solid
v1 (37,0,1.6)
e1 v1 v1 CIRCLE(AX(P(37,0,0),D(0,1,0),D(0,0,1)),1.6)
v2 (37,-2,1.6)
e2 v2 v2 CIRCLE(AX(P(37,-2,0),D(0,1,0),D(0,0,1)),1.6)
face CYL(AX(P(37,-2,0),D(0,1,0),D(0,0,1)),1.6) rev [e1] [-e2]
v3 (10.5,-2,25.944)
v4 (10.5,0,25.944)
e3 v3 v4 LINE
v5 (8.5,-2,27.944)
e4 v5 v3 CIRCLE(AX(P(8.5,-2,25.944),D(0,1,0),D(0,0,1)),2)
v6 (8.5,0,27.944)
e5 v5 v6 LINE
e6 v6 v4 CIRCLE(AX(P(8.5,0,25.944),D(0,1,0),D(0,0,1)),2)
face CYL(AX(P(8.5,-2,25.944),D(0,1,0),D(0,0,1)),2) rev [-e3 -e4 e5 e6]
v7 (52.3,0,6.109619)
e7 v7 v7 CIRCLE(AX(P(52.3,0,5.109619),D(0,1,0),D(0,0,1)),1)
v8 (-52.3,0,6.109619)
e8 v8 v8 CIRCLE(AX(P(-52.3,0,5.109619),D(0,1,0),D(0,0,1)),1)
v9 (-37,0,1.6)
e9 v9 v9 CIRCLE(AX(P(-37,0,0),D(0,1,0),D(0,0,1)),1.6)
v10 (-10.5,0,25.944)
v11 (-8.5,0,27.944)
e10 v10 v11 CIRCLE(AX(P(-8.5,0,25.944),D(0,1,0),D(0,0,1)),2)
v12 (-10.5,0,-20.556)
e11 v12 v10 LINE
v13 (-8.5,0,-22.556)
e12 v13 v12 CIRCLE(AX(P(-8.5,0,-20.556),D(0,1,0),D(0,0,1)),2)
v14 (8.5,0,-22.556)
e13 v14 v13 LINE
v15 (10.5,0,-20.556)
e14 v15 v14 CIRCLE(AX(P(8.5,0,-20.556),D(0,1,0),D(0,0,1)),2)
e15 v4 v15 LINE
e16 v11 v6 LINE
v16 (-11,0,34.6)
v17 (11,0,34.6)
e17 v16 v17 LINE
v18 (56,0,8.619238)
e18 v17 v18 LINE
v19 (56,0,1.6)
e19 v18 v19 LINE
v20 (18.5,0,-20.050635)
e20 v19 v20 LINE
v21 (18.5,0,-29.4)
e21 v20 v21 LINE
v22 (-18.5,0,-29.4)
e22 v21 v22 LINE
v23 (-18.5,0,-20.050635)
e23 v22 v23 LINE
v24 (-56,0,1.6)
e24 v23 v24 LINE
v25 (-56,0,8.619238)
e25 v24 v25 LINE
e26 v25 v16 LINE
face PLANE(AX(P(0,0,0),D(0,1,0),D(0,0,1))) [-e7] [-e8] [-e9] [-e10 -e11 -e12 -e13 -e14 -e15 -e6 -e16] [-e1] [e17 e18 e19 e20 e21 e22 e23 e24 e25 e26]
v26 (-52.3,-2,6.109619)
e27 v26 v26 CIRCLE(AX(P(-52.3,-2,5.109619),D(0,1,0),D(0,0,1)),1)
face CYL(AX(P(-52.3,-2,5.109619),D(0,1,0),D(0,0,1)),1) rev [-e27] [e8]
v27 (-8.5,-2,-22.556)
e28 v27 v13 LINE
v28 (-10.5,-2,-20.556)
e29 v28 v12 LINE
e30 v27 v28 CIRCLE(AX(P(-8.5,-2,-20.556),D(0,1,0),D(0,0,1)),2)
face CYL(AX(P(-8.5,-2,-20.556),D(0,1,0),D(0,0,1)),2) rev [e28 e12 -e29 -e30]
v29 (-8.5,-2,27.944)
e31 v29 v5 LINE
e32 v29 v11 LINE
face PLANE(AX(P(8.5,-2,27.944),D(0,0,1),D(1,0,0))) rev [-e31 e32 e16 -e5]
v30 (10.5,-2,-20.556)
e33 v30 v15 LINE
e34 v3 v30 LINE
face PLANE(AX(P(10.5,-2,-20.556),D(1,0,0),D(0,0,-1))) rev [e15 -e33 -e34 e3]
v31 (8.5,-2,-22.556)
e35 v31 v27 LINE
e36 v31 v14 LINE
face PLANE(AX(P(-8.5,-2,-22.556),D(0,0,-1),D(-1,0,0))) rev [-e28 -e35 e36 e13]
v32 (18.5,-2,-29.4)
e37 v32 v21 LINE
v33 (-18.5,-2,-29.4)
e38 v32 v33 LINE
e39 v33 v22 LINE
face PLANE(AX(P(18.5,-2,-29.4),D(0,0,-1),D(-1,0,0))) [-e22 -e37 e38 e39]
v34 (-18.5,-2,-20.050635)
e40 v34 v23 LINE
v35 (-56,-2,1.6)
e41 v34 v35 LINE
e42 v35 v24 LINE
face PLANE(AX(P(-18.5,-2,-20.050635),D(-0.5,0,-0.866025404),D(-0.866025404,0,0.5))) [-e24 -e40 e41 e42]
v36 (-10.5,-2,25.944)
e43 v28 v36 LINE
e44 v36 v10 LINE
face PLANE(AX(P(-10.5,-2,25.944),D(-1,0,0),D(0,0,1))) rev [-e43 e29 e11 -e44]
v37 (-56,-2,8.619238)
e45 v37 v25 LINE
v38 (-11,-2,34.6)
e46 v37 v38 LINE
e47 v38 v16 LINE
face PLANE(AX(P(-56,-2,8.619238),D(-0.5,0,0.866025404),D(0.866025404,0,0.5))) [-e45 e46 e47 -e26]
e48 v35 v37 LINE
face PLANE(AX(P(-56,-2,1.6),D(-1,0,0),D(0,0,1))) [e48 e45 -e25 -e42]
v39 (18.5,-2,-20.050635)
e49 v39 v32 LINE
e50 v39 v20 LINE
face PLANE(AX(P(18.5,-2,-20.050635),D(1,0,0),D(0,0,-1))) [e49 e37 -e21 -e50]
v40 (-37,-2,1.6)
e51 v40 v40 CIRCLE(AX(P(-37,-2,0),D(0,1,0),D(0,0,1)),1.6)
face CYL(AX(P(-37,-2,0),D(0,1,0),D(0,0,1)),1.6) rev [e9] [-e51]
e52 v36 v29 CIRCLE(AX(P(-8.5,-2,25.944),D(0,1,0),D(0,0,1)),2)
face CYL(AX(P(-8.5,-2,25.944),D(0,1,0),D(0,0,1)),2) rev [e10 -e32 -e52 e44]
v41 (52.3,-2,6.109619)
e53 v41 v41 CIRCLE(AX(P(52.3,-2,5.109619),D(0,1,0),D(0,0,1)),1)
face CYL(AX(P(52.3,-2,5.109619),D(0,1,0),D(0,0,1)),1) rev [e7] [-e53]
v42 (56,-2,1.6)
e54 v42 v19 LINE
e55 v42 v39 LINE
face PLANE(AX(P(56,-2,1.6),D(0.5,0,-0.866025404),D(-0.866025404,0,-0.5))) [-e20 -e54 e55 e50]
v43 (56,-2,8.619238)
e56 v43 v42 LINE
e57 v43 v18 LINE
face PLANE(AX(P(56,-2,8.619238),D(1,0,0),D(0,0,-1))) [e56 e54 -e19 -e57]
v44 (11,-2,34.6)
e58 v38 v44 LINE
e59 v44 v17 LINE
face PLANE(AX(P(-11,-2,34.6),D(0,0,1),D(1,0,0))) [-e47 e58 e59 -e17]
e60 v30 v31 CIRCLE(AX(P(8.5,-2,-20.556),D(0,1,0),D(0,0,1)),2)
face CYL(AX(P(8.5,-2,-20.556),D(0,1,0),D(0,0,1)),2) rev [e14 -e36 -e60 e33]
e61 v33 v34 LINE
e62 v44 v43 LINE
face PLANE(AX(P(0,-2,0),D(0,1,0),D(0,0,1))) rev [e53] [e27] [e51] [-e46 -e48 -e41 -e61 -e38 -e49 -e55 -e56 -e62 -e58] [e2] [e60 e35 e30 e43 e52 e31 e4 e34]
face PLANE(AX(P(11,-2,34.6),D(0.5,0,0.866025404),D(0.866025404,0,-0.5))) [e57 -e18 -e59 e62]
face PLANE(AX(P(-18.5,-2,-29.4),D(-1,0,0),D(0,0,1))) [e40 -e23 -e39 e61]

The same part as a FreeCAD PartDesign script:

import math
import FreeCAD as App
import Part
import Sketcher
Q = App.Units.Quantity


def add_polygon(sketch, points):
    """Adds a closed chain of lines whose ends are joined by coincident constraints."""
    first, n = sketch.GeometryCount, len(points)
    for a, b in zip(points, points[1:] + points[:1]):
        sketch.addGeometry(Part.LineSegment(App.Vector(*a, 0), App.Vector(*b, 0)), False)
    for i in range(n):
        sketch.addConstraint(Sketcher.Constraint("Coincident", first + i, 2, first + (i + 1) % n, 1))

doc = App.newDocument("Part")
params = doc.addObject("Spreadsheet::Sheet", "Params")
for row, (alias, value) in enumerate([
    ("sketch1_diameter", "2 mm"),
    ("sketch1_radius", "2 mm"),
    ("sketch1_diameter2", "3.2 mm"),
    ("sketch1_width", "22 mm"),
    ("sketch1_width2", "37 mm"),
    ("pad1_length", "2 mm"),
], start=1):
    params.set(f"A{row}", alias)
    params.set(f"B{row}", "=" + value)
    params.setAlias(f"B{row}", alias)

body = doc.addObject("PartDesign::Body", "Body")

sketch1 = body.newObject("Sketcher::SketchObject", "Sketch")
sketch1.AttachmentSupport = (doc.getObject("XZ_Plane"), [""])
sketch1.MapMode = "FlatFace"
add_polygon(sketch1, [(-56, 1.6), (-56, 8.619238), (-11, 34.6), (11, 34.6), (56, 8.619238), (56, 1.6), (18.5, -20.050635), (18.5, -29.4), (-18.5, -29.4), (-18.5, -20.050635)])
sketch1.addGeometry(Part.Circle(App.Vector(-52.3, 5.109619, 0), App.Vector(0, 0, 1), 1), False)
sketch1.addGeometry(Part.Circle(App.Vector(52.3, 5.109619, 0), App.Vector(0, 0, 1), 1), False)
sketch1.addGeometry(Part.Circle(App.Vector(-37, 0, 0), App.Vector(0, 0, 1), 1.6), False)
sketch1.addGeometry(Part.ArcOfCircle(Part.Circle(App.Vector(8.5, 25.944, 0), App.Vector(0, 0, 1), 2), math.radians(0), math.radians(90)), False)
sketch1.addGeometry(Part.LineSegment(App.Vector(8.5, 27.944, 0), App.Vector(-8.5, 27.944, 0)), False)
sketch1.addGeometry(Part.ArcOfCircle(Part.Circle(App.Vector(-8.5, 25.944, 0), App.Vector(0, 0, 1), 2), math.radians(90), math.radians(180)), False)
sketch1.addGeometry(Part.LineSegment(App.Vector(-10.5, 25.944, 0), App.Vector(-10.5, -20.556, 0)), False)
sketch1.addGeometry(Part.ArcOfCircle(Part.Circle(App.Vector(-8.5, -20.556, 0), App.Vector(0, 0, 1), 2), math.radians(-180), math.radians(-90)), False)
sketch1.addGeometry(Part.LineSegment(App.Vector(-8.5, -22.556, 0), App.Vector(8.5, -22.556, 0)), False)
sketch1.addGeometry(Part.ArcOfCircle(Part.Circle(App.Vector(8.5, -20.556, 0), App.Vector(0, 0, 1), 2), math.radians(-90), math.radians(0)), False)
sketch1.addGeometry(Part.LineSegment(App.Vector(10.5, -20.556, 0), App.Vector(10.5, 25.944, 0)), False)
sketch1.addGeometry(Part.Circle(App.Vector(37, 0, 0), App.Vector(0, 0, 1), 1.6), False)
sketch1.addConstraint(Sketcher.Constraint("Tangent", 13, 2, 14, 1))
sketch1.addConstraint(Sketcher.Constraint("Tangent", 14, 2, 15, 1))
sketch1.addConstraint(Sketcher.Constraint("Tangent", 15, 2, 16, 1))
sketch1.addConstraint(Sketcher.Constraint("Tangent", 16, 2, 17, 1))
sketch1.addConstraint(Sketcher.Constraint("Tangent", 17, 2, 18, 1))
sketch1.addConstraint(Sketcher.Constraint("Tangent", 18, 2, 19, 1))
sketch1.addConstraint(Sketcher.Constraint("Tangent", 19, 2, 20, 1))
sketch1.addConstraint(Sketcher.Constraint("Tangent", 20, 2, 13, 1))
sketch1.addConstraint(Sketcher.Constraint("Vertical", 0))
sketch1.addConstraint(Sketcher.Constraint("Horizontal", 2))
sketch1.addConstraint(Sketcher.Constraint("Vertical", 4))
sketch1.addConstraint(Sketcher.Constraint("Vertical", 6))
sketch1.addConstraint(Sketcher.Constraint("Horizontal", 7))
sketch1.addConstraint(Sketcher.Constraint("Vertical", 8))
sketch1.addConstraint(Sketcher.Constraint("Horizontal", 14))
sketch1.addConstraint(Sketcher.Constraint("Vertical", 16))
sketch1.addConstraint(Sketcher.Constraint("Horizontal", 18))
sketch1.addConstraint(Sketcher.Constraint("Vertical", 20))
sketch1.addConstraint(Sketcher.Constraint("Equal", 10, 11))
sketch1.addConstraint(Sketcher.Constraint("Equal", 13, 15))
sketch1.addConstraint(Sketcher.Constraint("Equal", 15, 17))
sketch1.addConstraint(Sketcher.Constraint("Equal", 17, 19))
sketch1.addConstraint(Sketcher.Constraint("Equal", 12, 21))
sketch1.addConstraint(Sketcher.Constraint("Symmetric", 12, 3, 21, 3, -1, 1))
sketch1.addConstraint(Sketcher.Constraint("Symmetric", 10, 3, 11, 3, -2))
sketch1.addConstraint(Sketcher.Constraint("Symmetric", 0, 2, 3, 2, -2))
sketch1.addConstraint(Sketcher.Constraint("Symmetric", 5, 2, 8, 2, -2))
sketch1.addConstraint(Sketcher.Constraint("PointOnObject", 12, 3, -1))
sketch1.addConstraint(Sketcher.Constraint("Parallel", 1, 5))
sketch1.addConstraint(Sketcher.Constraint("Parallel", 3, 9))
sketch1.addConstraint(Sketcher.Constraint("Horizontal", 4, 2, 9, 2))
sketch1.addConstraint(Sketcher.Constraint("Diameter", 10, Q("2 mm")))
sketch1.addConstraint(Sketcher.Constraint("Radius", 13, Q("2 mm")))
sketch1.addConstraint(Sketcher.Constraint("Diameter", 12, Q("3.2 mm")))
sketch1.addConstraint(Sketcher.Constraint("DistanceX", 2, 1, 2, 2, Q("22 mm")))
sketch1.addConstraint(Sketcher.Constraint("DistanceX", 7, 2, 7, 1, Q("37 mm")))
sketch1.addConstraint(Sketcher.Constraint("DistanceX", 14, 2, 14, 1, Q("17 mm")))
sketch1.addConstraint(Sketcher.Constraint("Angle", 1, Q("30 deg")))
sketch1.addConstraint(Sketcher.Constraint("DistanceY", 16, 2, 16, 1, Q("46.5 mm")))
sketch1.addConstraint(Sketcher.Constraint("DistanceX", 12, 3, -1, 1, Q("37 mm")))
sketch1.addConstraint(Sketcher.Constraint("DistanceX", 0, 2, -1, 1, Q("56 mm")))
sketch1.addConstraint(Sketcher.Constraint("DistanceX", 19, 3, 5, 2, Q("10 mm")))
sketch1.addConstraint(Sketcher.Constraint("DistanceY", 7, 2, 9, 2, Q("31 mm")))
sketch1.addConstraint(Sketcher.Constraint("DistanceX", 10, 3, -1, 1, Q("52.3 mm")))
sketch1.addConstraint(Sketcher.Constraint("DistanceY", -1, 1, 1, 2, Q("34.6 mm")))
sketch1.addConstraint(Sketcher.Constraint("DistanceY", -1, 1, 4, 2, Q("1.6 mm")))
sketch1.addConstraint(Sketcher.Constraint("DistanceY", -1, 1, 13, 3, Q("25.944 mm")))
sketch1.addConstraint(Sketcher.Constraint("DistanceY", -1, 1, 10, 3, Q("5.109619 mm")))
sketch1.setExpression("Constraints[41]", "Params.sketch1_diameter")
sketch1.setExpression("Constraints[42]", "Params.sketch1_radius")
sketch1.setExpression("Constraints[43]", "Params.sketch1_diameter2")
sketch1.setExpression("Constraints[44]", "Params.sketch1_width")
sketch1.setExpression("Constraints[45]", "Params.sketch1_width2")
pad1 = body.newObject("PartDesign::Pad", "Pad")
pad1.Profile = sketch1
pad1.setExpression("Length", "Params.pad1_length")

doc.recompute()
